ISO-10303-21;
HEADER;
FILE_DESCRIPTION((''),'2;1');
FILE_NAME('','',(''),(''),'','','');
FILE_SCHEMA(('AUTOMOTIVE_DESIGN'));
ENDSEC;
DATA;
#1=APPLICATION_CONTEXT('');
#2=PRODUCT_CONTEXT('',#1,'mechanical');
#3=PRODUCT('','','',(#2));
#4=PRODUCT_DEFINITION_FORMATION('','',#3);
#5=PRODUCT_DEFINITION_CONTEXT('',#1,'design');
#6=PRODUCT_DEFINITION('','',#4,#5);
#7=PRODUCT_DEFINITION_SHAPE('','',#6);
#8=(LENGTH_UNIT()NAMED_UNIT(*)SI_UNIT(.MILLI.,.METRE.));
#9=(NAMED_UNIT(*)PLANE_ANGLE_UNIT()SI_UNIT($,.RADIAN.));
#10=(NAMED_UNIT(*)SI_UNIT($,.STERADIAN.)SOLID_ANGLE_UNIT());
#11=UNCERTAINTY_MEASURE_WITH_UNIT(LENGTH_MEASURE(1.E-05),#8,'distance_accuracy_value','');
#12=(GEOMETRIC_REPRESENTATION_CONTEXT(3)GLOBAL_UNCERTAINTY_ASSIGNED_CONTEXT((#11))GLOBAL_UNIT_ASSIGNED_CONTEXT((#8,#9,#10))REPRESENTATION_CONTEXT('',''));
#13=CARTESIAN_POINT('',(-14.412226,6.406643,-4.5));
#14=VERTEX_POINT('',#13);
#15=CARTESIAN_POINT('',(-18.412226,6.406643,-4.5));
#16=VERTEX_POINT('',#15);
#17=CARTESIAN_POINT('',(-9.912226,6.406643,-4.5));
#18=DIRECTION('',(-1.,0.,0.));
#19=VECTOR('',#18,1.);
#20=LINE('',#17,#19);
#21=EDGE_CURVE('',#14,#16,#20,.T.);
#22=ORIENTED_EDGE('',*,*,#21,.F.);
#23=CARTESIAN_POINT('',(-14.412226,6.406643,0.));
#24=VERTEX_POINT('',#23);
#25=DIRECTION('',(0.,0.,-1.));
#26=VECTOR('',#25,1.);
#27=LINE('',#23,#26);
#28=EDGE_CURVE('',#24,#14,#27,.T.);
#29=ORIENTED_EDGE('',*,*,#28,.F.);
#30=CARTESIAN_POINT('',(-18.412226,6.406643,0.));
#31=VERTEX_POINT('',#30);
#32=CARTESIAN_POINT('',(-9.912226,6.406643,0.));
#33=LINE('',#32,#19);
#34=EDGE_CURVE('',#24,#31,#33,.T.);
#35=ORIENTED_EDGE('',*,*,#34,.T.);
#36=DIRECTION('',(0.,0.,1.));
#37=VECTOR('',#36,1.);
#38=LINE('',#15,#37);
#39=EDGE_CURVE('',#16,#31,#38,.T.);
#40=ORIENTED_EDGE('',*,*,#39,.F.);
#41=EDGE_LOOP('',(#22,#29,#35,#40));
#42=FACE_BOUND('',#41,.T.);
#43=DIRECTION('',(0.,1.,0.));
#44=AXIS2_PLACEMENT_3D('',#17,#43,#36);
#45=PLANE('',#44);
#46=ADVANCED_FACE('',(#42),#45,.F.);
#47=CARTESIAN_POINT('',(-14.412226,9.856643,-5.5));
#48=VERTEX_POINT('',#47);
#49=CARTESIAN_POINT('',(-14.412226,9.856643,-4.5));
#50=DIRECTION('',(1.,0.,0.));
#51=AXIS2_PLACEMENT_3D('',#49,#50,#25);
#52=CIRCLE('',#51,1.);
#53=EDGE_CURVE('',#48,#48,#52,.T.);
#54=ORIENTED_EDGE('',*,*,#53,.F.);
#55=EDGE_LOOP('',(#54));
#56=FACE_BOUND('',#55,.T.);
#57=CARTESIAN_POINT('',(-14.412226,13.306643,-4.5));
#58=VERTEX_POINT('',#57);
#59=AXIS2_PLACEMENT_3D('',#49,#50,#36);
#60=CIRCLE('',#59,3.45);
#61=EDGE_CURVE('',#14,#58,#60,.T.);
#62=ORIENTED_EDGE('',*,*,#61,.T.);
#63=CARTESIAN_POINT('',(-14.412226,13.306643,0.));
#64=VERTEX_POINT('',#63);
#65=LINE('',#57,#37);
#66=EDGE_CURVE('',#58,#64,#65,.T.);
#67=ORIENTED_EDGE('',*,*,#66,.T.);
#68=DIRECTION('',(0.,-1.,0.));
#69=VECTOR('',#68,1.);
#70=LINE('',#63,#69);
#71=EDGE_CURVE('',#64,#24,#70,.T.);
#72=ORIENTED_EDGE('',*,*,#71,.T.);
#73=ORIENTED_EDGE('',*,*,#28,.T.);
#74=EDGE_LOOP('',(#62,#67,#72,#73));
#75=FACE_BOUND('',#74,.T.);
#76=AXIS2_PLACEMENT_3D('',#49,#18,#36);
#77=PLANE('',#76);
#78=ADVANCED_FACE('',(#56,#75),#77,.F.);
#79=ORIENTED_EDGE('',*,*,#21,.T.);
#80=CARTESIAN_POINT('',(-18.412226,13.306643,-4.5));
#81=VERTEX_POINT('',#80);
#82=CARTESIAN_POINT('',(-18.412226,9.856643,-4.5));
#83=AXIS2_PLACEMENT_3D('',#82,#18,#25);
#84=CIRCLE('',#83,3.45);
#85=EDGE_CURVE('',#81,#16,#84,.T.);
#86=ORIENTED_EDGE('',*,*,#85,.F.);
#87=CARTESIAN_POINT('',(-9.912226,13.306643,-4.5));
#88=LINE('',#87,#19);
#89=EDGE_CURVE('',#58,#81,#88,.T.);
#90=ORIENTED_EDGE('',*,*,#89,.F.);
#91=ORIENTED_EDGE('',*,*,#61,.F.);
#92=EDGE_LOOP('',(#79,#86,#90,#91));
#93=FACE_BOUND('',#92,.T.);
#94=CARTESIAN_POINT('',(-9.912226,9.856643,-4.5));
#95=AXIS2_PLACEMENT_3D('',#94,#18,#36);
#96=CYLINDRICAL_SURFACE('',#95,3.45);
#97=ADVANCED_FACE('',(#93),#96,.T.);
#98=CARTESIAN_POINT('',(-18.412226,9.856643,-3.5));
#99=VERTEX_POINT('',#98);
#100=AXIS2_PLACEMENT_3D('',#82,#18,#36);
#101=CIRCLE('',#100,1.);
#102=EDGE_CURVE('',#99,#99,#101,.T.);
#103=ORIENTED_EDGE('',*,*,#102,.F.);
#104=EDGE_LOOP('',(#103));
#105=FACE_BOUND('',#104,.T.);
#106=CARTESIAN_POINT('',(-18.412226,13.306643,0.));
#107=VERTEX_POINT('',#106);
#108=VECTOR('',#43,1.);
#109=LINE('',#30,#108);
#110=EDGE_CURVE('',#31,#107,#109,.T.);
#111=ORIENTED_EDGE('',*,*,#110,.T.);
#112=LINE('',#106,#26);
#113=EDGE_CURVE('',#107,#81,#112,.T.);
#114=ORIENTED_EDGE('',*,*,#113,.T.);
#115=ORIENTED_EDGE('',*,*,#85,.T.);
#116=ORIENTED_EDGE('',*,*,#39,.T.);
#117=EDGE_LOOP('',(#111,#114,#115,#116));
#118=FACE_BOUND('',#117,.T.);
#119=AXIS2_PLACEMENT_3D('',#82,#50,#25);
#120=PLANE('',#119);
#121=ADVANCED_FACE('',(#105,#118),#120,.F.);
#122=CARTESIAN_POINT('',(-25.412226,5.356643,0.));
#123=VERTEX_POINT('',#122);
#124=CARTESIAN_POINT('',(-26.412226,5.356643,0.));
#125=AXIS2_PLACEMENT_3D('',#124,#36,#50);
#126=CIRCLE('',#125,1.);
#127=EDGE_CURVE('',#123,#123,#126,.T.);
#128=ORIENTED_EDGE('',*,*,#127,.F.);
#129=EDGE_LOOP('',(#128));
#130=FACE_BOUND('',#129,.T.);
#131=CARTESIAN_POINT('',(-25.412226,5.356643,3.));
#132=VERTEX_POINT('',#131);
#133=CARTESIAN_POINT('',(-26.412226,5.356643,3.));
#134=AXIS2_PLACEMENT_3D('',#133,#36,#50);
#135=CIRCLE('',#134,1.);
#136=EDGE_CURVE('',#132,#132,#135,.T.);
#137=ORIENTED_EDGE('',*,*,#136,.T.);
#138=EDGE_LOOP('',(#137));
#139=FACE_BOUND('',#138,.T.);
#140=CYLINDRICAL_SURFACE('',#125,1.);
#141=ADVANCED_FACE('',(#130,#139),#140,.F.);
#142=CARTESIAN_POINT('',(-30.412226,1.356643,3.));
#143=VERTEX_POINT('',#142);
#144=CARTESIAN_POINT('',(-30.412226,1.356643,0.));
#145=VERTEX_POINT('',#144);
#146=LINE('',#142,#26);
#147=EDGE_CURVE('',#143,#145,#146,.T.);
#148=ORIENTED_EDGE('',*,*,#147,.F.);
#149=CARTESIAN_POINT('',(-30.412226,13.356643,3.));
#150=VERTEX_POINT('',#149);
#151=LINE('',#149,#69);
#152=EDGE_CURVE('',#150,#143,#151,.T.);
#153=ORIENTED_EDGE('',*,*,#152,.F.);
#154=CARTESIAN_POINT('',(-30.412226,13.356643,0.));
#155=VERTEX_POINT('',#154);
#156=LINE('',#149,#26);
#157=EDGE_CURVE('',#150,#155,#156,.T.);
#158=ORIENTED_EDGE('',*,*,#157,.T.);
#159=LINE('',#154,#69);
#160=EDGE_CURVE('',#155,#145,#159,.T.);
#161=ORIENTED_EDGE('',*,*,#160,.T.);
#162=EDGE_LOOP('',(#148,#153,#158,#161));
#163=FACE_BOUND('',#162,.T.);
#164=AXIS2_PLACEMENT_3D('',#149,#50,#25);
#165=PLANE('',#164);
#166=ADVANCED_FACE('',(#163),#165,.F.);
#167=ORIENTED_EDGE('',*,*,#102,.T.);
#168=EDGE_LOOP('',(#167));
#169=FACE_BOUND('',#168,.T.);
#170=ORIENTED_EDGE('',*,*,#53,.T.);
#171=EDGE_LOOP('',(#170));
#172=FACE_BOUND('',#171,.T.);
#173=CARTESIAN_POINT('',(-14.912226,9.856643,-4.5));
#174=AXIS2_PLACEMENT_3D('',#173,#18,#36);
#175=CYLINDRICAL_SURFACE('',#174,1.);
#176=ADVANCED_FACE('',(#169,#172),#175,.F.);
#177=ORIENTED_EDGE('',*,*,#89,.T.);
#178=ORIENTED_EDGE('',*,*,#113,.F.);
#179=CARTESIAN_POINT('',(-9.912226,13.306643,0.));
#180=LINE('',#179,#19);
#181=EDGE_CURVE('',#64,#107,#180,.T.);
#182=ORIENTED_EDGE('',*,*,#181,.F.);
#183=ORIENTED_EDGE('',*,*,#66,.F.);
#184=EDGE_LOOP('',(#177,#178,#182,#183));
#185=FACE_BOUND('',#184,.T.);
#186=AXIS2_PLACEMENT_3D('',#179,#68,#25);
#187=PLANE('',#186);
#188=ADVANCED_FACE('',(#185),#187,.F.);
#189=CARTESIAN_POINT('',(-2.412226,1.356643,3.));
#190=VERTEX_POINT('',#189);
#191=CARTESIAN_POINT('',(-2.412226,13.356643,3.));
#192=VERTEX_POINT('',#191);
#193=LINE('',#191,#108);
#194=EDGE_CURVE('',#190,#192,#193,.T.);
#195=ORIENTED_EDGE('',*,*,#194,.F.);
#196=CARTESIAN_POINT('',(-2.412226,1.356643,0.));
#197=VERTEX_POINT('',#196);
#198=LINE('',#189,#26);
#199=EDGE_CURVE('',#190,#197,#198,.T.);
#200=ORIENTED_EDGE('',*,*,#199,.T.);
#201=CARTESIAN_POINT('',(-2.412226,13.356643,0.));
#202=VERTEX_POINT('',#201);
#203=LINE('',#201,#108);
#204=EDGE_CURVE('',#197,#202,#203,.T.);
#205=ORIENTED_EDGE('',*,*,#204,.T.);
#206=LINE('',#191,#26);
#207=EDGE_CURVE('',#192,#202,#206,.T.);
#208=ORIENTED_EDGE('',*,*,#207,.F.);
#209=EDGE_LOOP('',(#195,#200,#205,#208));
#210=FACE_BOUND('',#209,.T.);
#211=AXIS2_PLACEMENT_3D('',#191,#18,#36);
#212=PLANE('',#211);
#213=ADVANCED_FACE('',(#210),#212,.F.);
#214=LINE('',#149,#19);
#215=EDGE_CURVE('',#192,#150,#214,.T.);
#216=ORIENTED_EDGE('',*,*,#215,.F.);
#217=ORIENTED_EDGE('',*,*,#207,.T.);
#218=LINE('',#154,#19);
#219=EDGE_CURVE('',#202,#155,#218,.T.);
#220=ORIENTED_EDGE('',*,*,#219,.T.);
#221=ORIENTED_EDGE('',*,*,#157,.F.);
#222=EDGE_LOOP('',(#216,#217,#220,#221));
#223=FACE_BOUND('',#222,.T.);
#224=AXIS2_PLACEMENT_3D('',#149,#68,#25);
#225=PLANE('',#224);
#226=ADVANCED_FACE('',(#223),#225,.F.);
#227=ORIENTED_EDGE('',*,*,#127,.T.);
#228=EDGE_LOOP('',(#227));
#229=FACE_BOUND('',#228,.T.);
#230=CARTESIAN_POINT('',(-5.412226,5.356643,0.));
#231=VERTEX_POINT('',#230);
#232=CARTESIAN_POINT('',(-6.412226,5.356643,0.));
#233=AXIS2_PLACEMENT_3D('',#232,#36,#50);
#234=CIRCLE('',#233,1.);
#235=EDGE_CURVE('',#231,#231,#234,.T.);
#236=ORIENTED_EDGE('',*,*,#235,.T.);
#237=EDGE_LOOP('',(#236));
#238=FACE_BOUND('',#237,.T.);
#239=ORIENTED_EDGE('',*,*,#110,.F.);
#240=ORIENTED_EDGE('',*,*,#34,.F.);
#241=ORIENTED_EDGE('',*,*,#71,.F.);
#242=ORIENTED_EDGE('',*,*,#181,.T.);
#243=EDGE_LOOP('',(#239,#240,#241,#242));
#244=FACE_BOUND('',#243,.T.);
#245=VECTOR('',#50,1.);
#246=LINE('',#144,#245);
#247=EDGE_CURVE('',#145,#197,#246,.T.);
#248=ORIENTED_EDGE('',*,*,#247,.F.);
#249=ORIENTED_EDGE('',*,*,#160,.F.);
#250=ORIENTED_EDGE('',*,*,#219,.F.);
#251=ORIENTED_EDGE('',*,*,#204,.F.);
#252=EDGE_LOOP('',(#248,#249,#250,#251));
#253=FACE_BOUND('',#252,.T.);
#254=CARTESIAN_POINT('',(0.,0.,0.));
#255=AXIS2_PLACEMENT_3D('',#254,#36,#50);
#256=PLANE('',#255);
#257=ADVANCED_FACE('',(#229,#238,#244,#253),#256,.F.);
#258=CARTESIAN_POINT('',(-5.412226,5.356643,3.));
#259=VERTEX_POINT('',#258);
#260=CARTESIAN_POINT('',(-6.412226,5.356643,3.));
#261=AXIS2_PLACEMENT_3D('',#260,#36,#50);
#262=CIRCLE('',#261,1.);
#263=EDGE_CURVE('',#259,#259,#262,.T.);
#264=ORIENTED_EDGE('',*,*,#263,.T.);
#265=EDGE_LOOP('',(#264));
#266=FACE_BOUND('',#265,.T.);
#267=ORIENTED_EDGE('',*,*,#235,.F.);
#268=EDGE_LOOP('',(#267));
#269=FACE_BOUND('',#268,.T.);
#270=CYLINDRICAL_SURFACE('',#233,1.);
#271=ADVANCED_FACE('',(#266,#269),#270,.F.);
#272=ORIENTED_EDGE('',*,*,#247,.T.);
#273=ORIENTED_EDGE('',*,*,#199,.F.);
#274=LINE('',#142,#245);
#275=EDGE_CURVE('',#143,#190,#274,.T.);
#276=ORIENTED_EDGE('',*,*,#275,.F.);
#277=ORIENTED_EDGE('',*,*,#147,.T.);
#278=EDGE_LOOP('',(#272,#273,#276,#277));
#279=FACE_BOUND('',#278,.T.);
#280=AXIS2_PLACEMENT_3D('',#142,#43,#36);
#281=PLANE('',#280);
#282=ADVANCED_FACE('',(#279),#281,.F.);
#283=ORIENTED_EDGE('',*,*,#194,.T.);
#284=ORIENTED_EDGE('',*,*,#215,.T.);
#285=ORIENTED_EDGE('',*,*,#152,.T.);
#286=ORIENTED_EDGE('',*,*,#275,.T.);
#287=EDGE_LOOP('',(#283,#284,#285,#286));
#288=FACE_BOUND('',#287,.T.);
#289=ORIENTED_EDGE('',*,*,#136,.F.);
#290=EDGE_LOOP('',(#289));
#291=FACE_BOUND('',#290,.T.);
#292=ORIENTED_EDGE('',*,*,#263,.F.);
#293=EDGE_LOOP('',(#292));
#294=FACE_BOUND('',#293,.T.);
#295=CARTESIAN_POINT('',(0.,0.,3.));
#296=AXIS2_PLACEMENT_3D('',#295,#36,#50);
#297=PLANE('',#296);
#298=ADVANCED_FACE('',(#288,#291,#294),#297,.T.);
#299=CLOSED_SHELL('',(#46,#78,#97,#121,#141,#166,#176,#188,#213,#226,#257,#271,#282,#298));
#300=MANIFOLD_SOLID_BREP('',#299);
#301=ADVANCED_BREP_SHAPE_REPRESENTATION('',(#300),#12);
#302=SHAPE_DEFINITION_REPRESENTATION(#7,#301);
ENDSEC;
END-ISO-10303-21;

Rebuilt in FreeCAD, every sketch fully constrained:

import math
import FreeCAD as App
import Part
import Sketcher
from FreeCAD import Vector

doc = App.newDocument("Part")
params = doc.addObject("Spreadsheet::Sheet", "Params")
for row, (alias, value) in enumerate([
    ("sketch1_width", "28 mm"),
    ("sketch1_height", "12 mm"),
    ("pad1_length", "3 mm"),
    ("sketch2_diameter", "2 mm"),
    ("pocket1_length", "3 mm"),
    ("sketch3_width", "3 mm"),
    ("pad2_length", "8 mm"),
    ("sketch4_diameter", "2 mm"),
    ("pocket2_length", "3 mm"),
    ("sketch5_height", "8 mm"),
    ("sketch5_radius", "3.45 mm"),
    ("sketch5_height2", "4.5 mm"),
    ("sketch5_width", "0.05 mm"),
    ("pocket3_length", "8 mm"),
    ("sketch6_diameter", "2 mm"),
    ("sketch6_radius", "3.45 mm"),
    ("sketch6_height", "4.5 mm"),
    ("pad3_length", "0.5 mm"),
    ("sketch7_diameter", "2 mm"),
    ("sketch7_radius", "3.45 mm"),
    ("sketch7_height", "4.5 mm"),
    ("pad4_length", "0.5 mm"),
], start=1):
    params.set(f"A{row}", alias)
    params.set(f"B{row}", "=" + value)
    params.setAlias(f"B{row}", alias)

body = doc.addObject("PartDesign::Body", "Body")

sketch1 = body.newObject("Sketcher::SketchObject", "Sketch")
sketch1.AttachmentSupport = (doc.getObject("XY_Plane"), [""])
sketch1.MapMode = "FlatFace"
sketch1.addGeometry([
    Part.LineSegment(Vector(-30, 13, 0), Vector(-30, 1, 0)),
    Part.LineSegment(Vector(-30, 1, 0), Vector(-2, 1, 0)),
    Part.LineSegment(Vector(-2, 1, 0), Vector(-2, 13, 0)),
    Part.LineSegment(Vector(-2, 13, 0), Vector(-30, 13, 0)),
], False)
sketch1.addConstraint([
    Sketcher.Constraint("Coincident", 0, 2, 1, 1),
    Sketcher.Constraint("Coincident", 1, 2, 2, 1),
    Sketcher.Constraint("Coincident", 2, 2, 3, 1),
    Sketcher.Constraint("Coincident", 3, 2, 0, 1),
    Sketcher.Constraint("Vertical", 0),
    Sketcher.Constraint("Horizontal", 1),
    Sketcher.Constraint("Vertical", 2),
    Sketcher.Constraint("Horizontal", 3),
    Sketcher.Constraint("DistanceX", 1, 1, 1, 2, 28.0),
    Sketcher.Constraint("DistanceY", 0, 2, 0, 1, 12.0),
    Sketcher.Constraint("DistanceX", 0, 2, -1, 1, 30.412226),
    Sketcher.Constraint("DistanceY", -1, 1, 0, 2, 1.356643),
])
sketch1.setExpression("Constraints[8]", "Params.sketch1_width")
sketch1.setExpression("Constraints[9]", "Params.sketch1_height")
pad1 = body.newObject("PartDesign::Pad", "Pad")
pad1.Profile = sketch1
pad1.setExpression("Length", "Params.pad1_length")

sketch2 = body.newObject("Sketcher::SketchObject", "Sketch001")
sketch2.AttachmentSupport = (doc.getObject("XY_Plane"), [""])
sketch2.MapMode = "FlatFace"
sketch2.AttachmentOffset = App.Placement(Vector(0, 0, 3), App.Rotation())
sketch2.addGeometry([
    Part.Circle(Vector(-26.4, 5.4, 0), Vector(0, 0, 1), 1),
    Part.Circle(Vector(-6.4, 5.4, 0), Vector(0, 0, 1), 1),
], False)
sketch2.addConstraint([
    Sketcher.Constraint("Equal", 0, 1),
    Sketcher.Constraint("Horizontal", 0, 3, 1, 3),
    Sketcher.Constraint("Diameter", 0, 2.0),
    Sketcher.Constraint("DistanceX", 0, 3, 1, 3, 20.0),
    Sketcher.Constraint("DistanceX", 0, 3, -1, 1, 26.412226),
    Sketcher.Constraint("DistanceY", -1, 1, 0, 3, 5.356643),
])
sketch2.setExpression("Constraints[2]", "Params.sketch2_diameter")
pocket1 = body.newObject("PartDesign::Pocket", "Pocket")
pocket1.Profile = sketch2
pocket1.setExpression("Length", "Params.pocket1_length")

sketch3 = body.newObject("Sketcher::SketchObject", "Sketch002")
sketch3.AttachmentSupport = (doc.getObject("XY_Plane"), [""])
sketch3.MapMode = "FlatFace"
sketch3.addGeometry([
    Part.LineSegment(Vector(-14.9, 13.4, 0), Vector(-14.9, 5, 0)),
    Part.LineSegment(Vector(-14.9, 5, 0), Vector(-17.9, 5, 0)),
    Part.LineSegment(Vector(-17.9, 5, 0), Vector(-17.9, 13.4, 0)),
    Part.LineSegment(Vector(-17.9, 13.4, 0), Vector(-14.9, 13.4, 0)),
], False)
sketch3.addConstraint([
    Sketcher.Constraint("Coincident", 0, 2, 1, 1),
    Sketcher.Constraint("Coincident", 1, 2, 2, 1),
    Sketcher.Constraint("Coincident", 2, 2, 3, 1),
    Sketcher.Constraint("Coincident", 3, 2, 0, 1),
    Sketcher.Constraint("Vertical", 0),
    Sketcher.Constraint("Horizontal", 1),
    Sketcher.Constraint("Vertical", 2),
    Sketcher.Constraint("Horizontal", 3),
    Sketcher.Constraint("DistanceX", 1, 2, 1, 1, 3.0),
    Sketcher.Constraint("DistanceY", 0, 2, 0, 1, 8.392154),
    Sketcher.Constraint("DistanceY", -1, 1, 0, 2, 4.96449),
    Sketcher.Constraint("DistanceX", 0, 2, -1, 1, 14.912226),
])
sketch3.setExpression("Constraints[8]", "Params.sketch3_width")
pad2 = body.newObject("PartDesign::Pad", "Pad001")
pad2.Profile = sketch3
pad2.setExpression("Length", "Params.pad2_length")
pad2.Reversed = True

sketch4 = body.newObject("Sketcher::SketchObject", "Sketch003")
sketch4.AttachmentSupport = (doc.getObject("YZ_Plane"), [""])
sketch4.MapMode = "FlatFace"
sketch4.AttachmentOffset = App.Placement(Vector(0, 0, -17.912226), App.Rotation())
sketch4.addGeometry(Part.Circle(Vector(9.9, -4.5, 0), Vector(0, 0, 1), 1), False)
sketch4.addConstraint([
    Sketcher.Constraint("Diameter", 0, 2.0),
    Sketcher.Constraint("DistanceY", 0, 3, -1, 1, 4.5),
    Sketcher.Constraint("DistanceX", -1, 1, 0, 3, 9.856643),
])
sketch4.setExpression("Constraints[0]", "Params.sketch4_diameter")
pocket2 = body.newObject("PartDesign::Pocket", "Pocket001")
pocket2.Profile = sketch4
pocket2.setExpression("Length", "Params.pocket2_length")
pocket2.Reversed = True

sketch5 = body.newObject("Sketcher::SketchObject", "Sketch004")
sketch5.AttachmentSupport = (doc.getObject("YZ_Plane"), [""])
sketch5.MapMode = "FlatFace"
sketch5.AttachmentOffset = App.Placement(Vector(0, 0, -17.912226), App.Rotation())
sketch5.addGeometry([
    Part.LineSegment(Vector(13.357, 0, 0), Vector(13.357, -8, 0)),
    Part.LineSegment(Vector(13.357, -8, 0), Vector(4.964, -8, 0)),
    Part.LineSegment(Vector(4.964, -8, 0), Vector(4.964, 0, 0)),
    Part.LineSegment(Vector(4.964, 0, 0), Vector(6.407, 0, 0)),
    Part.LineSegment(Vector(6.407, 0, 0), Vector(6.407, -4.5, 0)),
    Part.ArcOfCircle(Part.Circle(Vector(9.857, -4.5, 0), Vector(0, 0, 1), 3.45), math.radians(180), math.radians(360)),
    Part.LineSegment(Vector(13.307, -4.5, 0), Vector(13.307, 0, 0)),
    Part.LineSegment(Vector(13.307, 0, 0), Vector(13.357, 0, 0)),
], False)
sketch5.addConstraint([
    Sketcher.Constraint("Coincident", 0, 2, 1, 1),
    Sketcher.Constraint("Coincident", 1, 2, 2, 1),
    Sketcher.Constraint("Coincident", 2, 2, 3, 1),
    Sketcher.Constraint("Coincident", 3, 2, 4, 1),
    Sketcher.Constraint("Tangent", 4, 2, 5, 1),
    Sketcher.Constraint("Tangent", 5, 2, 6, 1),
    Sketcher.Constraint("Coincident", 6, 2, 7, 1),
    Sketcher.Constraint("Coincident", 7, 2, 0, 1),
    Sketcher.Constraint("Vertical", 0),
    Sketcher.Constraint("Horizontal", 1),
    Sketcher.Constraint("Vertical", 2),
    Sketcher.Constraint("Horizontal", 3),
    Sketcher.Constraint("Vertical", 4),
    Sketcher.Constraint("Vertical", 6),
    Sketcher.Constraint("Horizontal", 7),
    Sketcher.Constraint("PointOnObject", 2, 2, -1),
    Sketcher.Constraint("PointOnObject", 6, 2, -1),
    Sketcher.Constraint("DistanceY", 0, 2, 0, 1, 8.0),
    Sketcher.Constraint("Radius", 5, 3.45),
    Sketcher.Constraint("DistanceY", 4, 2, 4, 1, 4.5),
    Sketcher.Constraint("DistanceX", 7, 1, 7, 2, 0.05),
    Sketcher.Constraint("DistanceX", 1, 2, 1, 1, 8.392154),
    Sketcher.Constraint("DistanceX", -1, 1, 1, 2, 4.96449),
])
sketch5.setExpression("Constraints[17]", "Params.sketch5_height")
sketch5.setExpression("Constraints[18]", "Params.sketch5_radius")
sketch5.setExpression("Constraints[19]", "Params.sketch5_height2")
sketch5.setExpression("Constraints[20]", "Params.sketch5_width")
pocket3 = body.newObject("PartDesign::Pocket", "Pocket002")
pocket3.Profile = sketch5
pocket3.setExpression("Length", "Params.pocket3_length")
pocket3.Reversed = True

sketch6 = body.newObject("Sketcher::SketchObject", "Sketch005")
sketch6.AttachmentSupport = (doc.getObject("YZ_Plane"), [""])
sketch6.MapMode = "FlatFace"
sketch6.AttachmentOffset = App.Placement(Vector(0, 0, -18.412226), App.Rotation())
sketch6.addGeometry([
    Part.LineSegment(Vector(6.4, -4.5, 0), Vector(6.4, 0, 0)),
    Part.LineSegment(Vector(6.4, 0, 0), Vector(13.3, 0, 0)),
    Part.LineSegment(Vector(13.3, 0, 0), Vector(13.3, -4.5, 0)),
    Part.ArcOfCircle(Part.Circle(Vector(9.9, -4.5, 0), Vector(0, 0, 1), 3.5), math.radians(180), math.radians(360)),
    Part.Circle(Vector(9.9, -4.5, 0), Vector(0, 0, 1), 1),
], False)
sketch6.addConstraint([
    Sketcher.Constraint("Coincident", 0, 2, 1, 1),
    Sketcher.Constraint("Coincident", 1, 2, 2, 1),
    Sketcher.Constraint("Tangent", 2, 2, 3, 2),
    Sketcher.Constraint("Tangent", 3, 1, 0, 1),
    Sketcher.Constraint("Vertical", 0),
    Sketcher.Constraint("Horizontal", 1),
    Sketcher.Constraint("Vertical", 2),
    Sketcher.Constraint("Coincident", 4, 3, 3, 3),
    Sketcher.Constraint("PointOnObject", 0, 2, -1),
    Sketcher.Constraint("Diameter", 4, 2.0),
    Sketcher.Constraint("Radius", 3, 3.45),
    Sketcher.Constraint("DistanceY", 0, 1, 0, 2, 4.5),
    Sketcher.Constraint("DistanceX", -1, 1, 3, 3, 9.856643),
])
sketch6.setExpression("Constraints[9]", "Params.sketch6_diameter")
sketch6.setExpression("Constraints[10]", "Params.sketch6_radius")
sketch6.setExpression("Constraints[11]", "Params.sketch6_height")
pad3 = body.newObject("PartDesign::Pad", "Pad002")
pad3.Profile = sketch6
pad3.setExpression("Length", "Params.pad3_length")

sketch7 = body.newObject("Sketcher::SketchObject", "Sketch006")
sketch7.AttachmentSupport = (doc.getObject("YZ_Plane"), [""])
sketch7.MapMode = "FlatFace"
sketch7.AttachmentOffset = App.Placement(Vector(0, 0, -14.912226), App.Rotation())
sketch7.addGeometry([
    Part.LineSegment(Vector(13.3, -4.5, 0), Vector(13.3, 0, 0)),
    Part.LineSegment(Vector(13.3, 0, 0), Vector(6.4, 0, 0)),
    Part.LineSegment(Vector(6.4, 0, 0), Vector(6.4, -4.5, 0)),
    Part.ArcOfCircle(Part.Circle(Vector(9.9, -4.5, 0), Vector(0, 0, 1), 3.5), math.radians(180), math.radians(360)),
    Part.Circle(Vector(9.9, -4.5, 0), Vector(0, 0, 1), 1),
], False)
sketch7.addConstraint([
    Sketcher.Constraint("Coincident", 0, 2, 1, 1),
    Sketcher.Constraint("Coincident", 1, 2, 2, 1),
    Sketcher.Constraint("Tangent", 2, 2, 3, 1),
    Sketcher.Constraint("Tangent", 3, 2, 0, 1),
    Sketcher.Constraint("Vertical", 0),
    Sketcher.Constraint("Horizontal", 1),
    Sketcher.Constraint("Vertical", 2),
    Sketcher.Constraint("Coincident", 4, 3, 3, 3),
    Sketcher.Constraint("PointOnObject", 0, 2, -1),
    Sketcher.Constraint("Diameter", 4, 2.0),
    Sketcher.Constraint("Radius", 3, 3.45),
    Sketcher.Constraint("DistanceY", 0, 1, 0, 2, 4.5),
    Sketcher.Constraint("DistanceX", -1, 1, 3, 3, 9.856643),
])
sketch7.setExpression("Constraints[9]", "Params.sketch7_diameter")
sketch7.setExpression("Constraints[10]", "Params.sketch7_radius")
sketch7.setExpression("Constraints[11]", "Params.sketch7_height")
pad4 = body.newObject("PartDesign::Pad", "Pad003")
pad4.Profile = sketch7
pad4.setExpression("Length", "Params.pad4_length")

doc.recompute()
